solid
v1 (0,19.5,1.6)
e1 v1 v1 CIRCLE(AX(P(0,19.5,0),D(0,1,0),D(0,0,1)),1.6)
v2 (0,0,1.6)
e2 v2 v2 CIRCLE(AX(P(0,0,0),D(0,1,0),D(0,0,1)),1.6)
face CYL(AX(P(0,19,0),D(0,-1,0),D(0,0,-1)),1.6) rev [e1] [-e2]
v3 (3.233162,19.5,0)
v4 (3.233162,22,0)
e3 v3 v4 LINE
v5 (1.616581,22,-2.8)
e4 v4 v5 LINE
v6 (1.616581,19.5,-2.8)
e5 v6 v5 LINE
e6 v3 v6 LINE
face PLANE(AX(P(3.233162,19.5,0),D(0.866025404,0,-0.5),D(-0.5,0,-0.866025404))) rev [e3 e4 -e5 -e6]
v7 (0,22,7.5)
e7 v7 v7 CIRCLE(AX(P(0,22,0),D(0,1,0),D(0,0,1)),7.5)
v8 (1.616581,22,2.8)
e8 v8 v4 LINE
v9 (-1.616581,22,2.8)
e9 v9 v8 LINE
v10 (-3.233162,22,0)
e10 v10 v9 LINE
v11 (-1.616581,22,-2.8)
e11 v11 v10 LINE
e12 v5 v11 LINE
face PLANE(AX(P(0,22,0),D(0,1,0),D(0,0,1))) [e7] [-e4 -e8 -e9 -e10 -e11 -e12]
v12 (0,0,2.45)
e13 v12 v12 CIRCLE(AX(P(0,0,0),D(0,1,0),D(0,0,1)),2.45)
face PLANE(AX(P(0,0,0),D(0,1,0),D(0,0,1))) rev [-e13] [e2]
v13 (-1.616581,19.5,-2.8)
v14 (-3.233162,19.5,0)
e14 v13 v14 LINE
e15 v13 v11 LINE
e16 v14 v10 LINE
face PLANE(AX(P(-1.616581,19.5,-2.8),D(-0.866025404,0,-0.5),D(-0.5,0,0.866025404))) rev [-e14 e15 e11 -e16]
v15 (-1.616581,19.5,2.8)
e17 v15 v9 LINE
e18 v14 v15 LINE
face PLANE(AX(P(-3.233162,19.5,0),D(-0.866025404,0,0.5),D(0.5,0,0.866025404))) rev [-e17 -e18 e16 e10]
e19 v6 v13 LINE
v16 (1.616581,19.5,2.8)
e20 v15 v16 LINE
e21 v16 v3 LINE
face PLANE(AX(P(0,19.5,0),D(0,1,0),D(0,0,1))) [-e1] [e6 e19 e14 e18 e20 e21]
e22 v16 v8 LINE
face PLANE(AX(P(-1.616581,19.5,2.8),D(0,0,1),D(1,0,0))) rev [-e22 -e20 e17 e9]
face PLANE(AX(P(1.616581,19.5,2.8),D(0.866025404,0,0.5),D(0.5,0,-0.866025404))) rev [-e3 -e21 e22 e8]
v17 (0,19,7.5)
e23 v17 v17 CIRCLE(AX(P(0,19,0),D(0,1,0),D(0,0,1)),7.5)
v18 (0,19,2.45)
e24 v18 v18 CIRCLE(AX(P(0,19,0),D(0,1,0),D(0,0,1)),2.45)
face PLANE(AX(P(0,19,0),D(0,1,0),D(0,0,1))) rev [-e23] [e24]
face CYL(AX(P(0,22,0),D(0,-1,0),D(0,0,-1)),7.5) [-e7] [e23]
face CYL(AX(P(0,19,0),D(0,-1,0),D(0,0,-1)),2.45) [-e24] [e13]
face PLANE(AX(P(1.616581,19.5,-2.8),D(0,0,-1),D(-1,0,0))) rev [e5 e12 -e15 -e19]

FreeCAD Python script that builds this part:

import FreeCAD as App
import Part
import Sketcher
Q = App.Units.Quantity

doc = App.newDocument("Part")
body = doc.addObject("PartDesign::Body", "Body")

# Sketch on XZ plane
sketch1 = body.newObject("Sketcher::SketchObject", "Sketch")
sketch1.AttachmentSupport = (doc.getObject("XZ_Plane"), [""])
sketch1.MapMode = "FlatFace"
sketch1.addGeometry([
    Part.Circle(App.Vector(0, 0, 0), App.Vector(0, 0, 1), 2.45),
    Part.Circle(App.Vector(0, 0, 0), App.Vector(0, 0, 1), 1.6),
], False)
sketch1.addConstraint([
    Sketcher.Constraint("Coincident", 0, 3, -1, 1),
    Sketcher.Constraint("Coincident", 1, 3, -1, 1),
    Sketcher.Constraint("Diameter", 0, Q("4.9 mm")),
    Sketcher.Constraint("Diameter", 1, Q("3.2 mm")),
])
pad1 = body.newObject("PartDesign::Pad", "Pad")
pad1.Profile = sketch1
pad1.Length = 19
pad1.Reversed = True

# Sketch on XZ plane
sketch2 = body.newObject("Sketcher::SketchObject", "Sketch001")
sketch2.AttachmentSupport = (doc.getObject("XZ_Plane"), [""])
sketch2.MapMode = "FlatFace"
sketch2.AttachmentOffset = App.Placement(App.Vector(0, 0, -19), App.Rotation())
sketch2.addGeometry(Part.Circle(App.Vector(0, 0, 0), App.Vector(0, 0, 1), 7.5), False)
sketch2.addConstraint([
    Sketcher.Constraint("Coincident", 0, 3, -1, 1),
    Sketcher.Constraint("Diameter", 0, Q("15 mm")),
])
pad2 = body.newObject("PartDesign::Pad", "Pad001")
pad2.Profile = sketch2
pad2.Length = 3
pad2.Reversed = True

# Sketch on XZ plane
sketch3 = body.newObject("Sketcher::SketchObject", "Sketch002")
sketch3.AttachmentSupport = (doc.getObject("XZ_Plane"), [""])
sketch3.MapMode = "FlatFace"
sketch3.AttachmentOffset = App.Placement(App.Vector(0, 0, -22), App.Rotation())
sketch3.addGeometry(Part.Circle(App.Vector(0, 0, 0), App.Vector(0, 0, 1), 1.6), False)
sketch3.addConstraint([
    Sketcher.Constraint("Coincident", 0, 3, -1, 1),
    Sketcher.Constraint("Diameter", 0, Q("3.2 mm")),
])
pocket1 = body.newObject("PartDesign::Pocket", "Pocket")
pocket1.Profile = sketch3
pocket1.Type = "UpToFirst"
pocket1.Reversed = True

# Sketch on XZ plane
sketch4 = body.newObject("Sketcher::SketchObject", "Sketch003")
sketch4.AttachmentSupport = (doc.getObject("XZ_Plane"), [""])
sketch4.MapMode = "FlatFace"
sketch4.AttachmentOffset = App.Placement(App.Vector(0, 0, -22), App.Rotation())
sketch4.addGeometry([
    Part.LineSegment(App.Vector(3.233162, 0, 0), App.Vector(1.616581, -2.8, 0)),  # 0
    Part.LineSegment(App.Vector(1.616581, -2.8, 0), App.Vector(-1.616581, -2.8, 0)),  # 1
    Part.LineSegment(App.Vector(-1.616581, -2.8, 0), App.Vector(-3.233162, 0, 0)),  # 2
    Part.LineSegment(App.Vector(-3.233162, 0, 0), App.Vector(-1.616581, 2.8, 0)),  # 3
    Part.LineSegment(App.Vector(-1.616581, 2.8, 0), App.Vector(1.616581, 2.8, 0)),  # 4
    Part.LineSegment(App.Vector(1.616581, 2.8, 0), App.Vector(3.233162, 0, 0)),  # 5
], False)
sketch4.addConstraint([
    Sketcher.Constraint("Coincident", 0, 2, 1, 1),
    Sketcher.Constraint("Coincident", 1, 2, 2, 1),
    Sketcher.Constraint("Coincident", 2, 2, 3, 1),
    Sketcher.Constraint("Coincident", 3, 2, 4, 1),
    Sketcher.Constraint("Coincident", 4, 2, 5, 1),
    Sketcher.Constraint("Coincident", 5, 2, 0, 1),
    Sketcher.Constraint("Horizontal", 1),
    Sketcher.Constraint("Horizontal", 4),
    Sketcher.Constraint("Symmetric", 0, 2, 3, 2, -1, 1),
    Sketcher.Constraint("Symmetric", 2, 2, 5, 2, -1, 1),
    Sketcher.Constraint("PointOnObject", 2, 2, -1),
    Sketcher.Constraint("Parallel", 2, 5),
    Sketcher.Constraint("Vertical", 1, 2, 3, 2),
    Sketcher.Constraint("Angle", 0, Q("-120 deg")),
    Sketcher.Constraint("DistanceY", 0, 2, -1, 1, Q("2.8 mm")),
    Sketcher.Constraint("DistanceX", 1, 2, 1, 1, Q("3.233162 mm")),
])
pocket2 = body.newObject("PartDesign::Pocket", "Pocket001")
pocket2.Profile = sketch4
pocket2.Length = 2.5
pocket2.Reversed = True

doc.recompute()
